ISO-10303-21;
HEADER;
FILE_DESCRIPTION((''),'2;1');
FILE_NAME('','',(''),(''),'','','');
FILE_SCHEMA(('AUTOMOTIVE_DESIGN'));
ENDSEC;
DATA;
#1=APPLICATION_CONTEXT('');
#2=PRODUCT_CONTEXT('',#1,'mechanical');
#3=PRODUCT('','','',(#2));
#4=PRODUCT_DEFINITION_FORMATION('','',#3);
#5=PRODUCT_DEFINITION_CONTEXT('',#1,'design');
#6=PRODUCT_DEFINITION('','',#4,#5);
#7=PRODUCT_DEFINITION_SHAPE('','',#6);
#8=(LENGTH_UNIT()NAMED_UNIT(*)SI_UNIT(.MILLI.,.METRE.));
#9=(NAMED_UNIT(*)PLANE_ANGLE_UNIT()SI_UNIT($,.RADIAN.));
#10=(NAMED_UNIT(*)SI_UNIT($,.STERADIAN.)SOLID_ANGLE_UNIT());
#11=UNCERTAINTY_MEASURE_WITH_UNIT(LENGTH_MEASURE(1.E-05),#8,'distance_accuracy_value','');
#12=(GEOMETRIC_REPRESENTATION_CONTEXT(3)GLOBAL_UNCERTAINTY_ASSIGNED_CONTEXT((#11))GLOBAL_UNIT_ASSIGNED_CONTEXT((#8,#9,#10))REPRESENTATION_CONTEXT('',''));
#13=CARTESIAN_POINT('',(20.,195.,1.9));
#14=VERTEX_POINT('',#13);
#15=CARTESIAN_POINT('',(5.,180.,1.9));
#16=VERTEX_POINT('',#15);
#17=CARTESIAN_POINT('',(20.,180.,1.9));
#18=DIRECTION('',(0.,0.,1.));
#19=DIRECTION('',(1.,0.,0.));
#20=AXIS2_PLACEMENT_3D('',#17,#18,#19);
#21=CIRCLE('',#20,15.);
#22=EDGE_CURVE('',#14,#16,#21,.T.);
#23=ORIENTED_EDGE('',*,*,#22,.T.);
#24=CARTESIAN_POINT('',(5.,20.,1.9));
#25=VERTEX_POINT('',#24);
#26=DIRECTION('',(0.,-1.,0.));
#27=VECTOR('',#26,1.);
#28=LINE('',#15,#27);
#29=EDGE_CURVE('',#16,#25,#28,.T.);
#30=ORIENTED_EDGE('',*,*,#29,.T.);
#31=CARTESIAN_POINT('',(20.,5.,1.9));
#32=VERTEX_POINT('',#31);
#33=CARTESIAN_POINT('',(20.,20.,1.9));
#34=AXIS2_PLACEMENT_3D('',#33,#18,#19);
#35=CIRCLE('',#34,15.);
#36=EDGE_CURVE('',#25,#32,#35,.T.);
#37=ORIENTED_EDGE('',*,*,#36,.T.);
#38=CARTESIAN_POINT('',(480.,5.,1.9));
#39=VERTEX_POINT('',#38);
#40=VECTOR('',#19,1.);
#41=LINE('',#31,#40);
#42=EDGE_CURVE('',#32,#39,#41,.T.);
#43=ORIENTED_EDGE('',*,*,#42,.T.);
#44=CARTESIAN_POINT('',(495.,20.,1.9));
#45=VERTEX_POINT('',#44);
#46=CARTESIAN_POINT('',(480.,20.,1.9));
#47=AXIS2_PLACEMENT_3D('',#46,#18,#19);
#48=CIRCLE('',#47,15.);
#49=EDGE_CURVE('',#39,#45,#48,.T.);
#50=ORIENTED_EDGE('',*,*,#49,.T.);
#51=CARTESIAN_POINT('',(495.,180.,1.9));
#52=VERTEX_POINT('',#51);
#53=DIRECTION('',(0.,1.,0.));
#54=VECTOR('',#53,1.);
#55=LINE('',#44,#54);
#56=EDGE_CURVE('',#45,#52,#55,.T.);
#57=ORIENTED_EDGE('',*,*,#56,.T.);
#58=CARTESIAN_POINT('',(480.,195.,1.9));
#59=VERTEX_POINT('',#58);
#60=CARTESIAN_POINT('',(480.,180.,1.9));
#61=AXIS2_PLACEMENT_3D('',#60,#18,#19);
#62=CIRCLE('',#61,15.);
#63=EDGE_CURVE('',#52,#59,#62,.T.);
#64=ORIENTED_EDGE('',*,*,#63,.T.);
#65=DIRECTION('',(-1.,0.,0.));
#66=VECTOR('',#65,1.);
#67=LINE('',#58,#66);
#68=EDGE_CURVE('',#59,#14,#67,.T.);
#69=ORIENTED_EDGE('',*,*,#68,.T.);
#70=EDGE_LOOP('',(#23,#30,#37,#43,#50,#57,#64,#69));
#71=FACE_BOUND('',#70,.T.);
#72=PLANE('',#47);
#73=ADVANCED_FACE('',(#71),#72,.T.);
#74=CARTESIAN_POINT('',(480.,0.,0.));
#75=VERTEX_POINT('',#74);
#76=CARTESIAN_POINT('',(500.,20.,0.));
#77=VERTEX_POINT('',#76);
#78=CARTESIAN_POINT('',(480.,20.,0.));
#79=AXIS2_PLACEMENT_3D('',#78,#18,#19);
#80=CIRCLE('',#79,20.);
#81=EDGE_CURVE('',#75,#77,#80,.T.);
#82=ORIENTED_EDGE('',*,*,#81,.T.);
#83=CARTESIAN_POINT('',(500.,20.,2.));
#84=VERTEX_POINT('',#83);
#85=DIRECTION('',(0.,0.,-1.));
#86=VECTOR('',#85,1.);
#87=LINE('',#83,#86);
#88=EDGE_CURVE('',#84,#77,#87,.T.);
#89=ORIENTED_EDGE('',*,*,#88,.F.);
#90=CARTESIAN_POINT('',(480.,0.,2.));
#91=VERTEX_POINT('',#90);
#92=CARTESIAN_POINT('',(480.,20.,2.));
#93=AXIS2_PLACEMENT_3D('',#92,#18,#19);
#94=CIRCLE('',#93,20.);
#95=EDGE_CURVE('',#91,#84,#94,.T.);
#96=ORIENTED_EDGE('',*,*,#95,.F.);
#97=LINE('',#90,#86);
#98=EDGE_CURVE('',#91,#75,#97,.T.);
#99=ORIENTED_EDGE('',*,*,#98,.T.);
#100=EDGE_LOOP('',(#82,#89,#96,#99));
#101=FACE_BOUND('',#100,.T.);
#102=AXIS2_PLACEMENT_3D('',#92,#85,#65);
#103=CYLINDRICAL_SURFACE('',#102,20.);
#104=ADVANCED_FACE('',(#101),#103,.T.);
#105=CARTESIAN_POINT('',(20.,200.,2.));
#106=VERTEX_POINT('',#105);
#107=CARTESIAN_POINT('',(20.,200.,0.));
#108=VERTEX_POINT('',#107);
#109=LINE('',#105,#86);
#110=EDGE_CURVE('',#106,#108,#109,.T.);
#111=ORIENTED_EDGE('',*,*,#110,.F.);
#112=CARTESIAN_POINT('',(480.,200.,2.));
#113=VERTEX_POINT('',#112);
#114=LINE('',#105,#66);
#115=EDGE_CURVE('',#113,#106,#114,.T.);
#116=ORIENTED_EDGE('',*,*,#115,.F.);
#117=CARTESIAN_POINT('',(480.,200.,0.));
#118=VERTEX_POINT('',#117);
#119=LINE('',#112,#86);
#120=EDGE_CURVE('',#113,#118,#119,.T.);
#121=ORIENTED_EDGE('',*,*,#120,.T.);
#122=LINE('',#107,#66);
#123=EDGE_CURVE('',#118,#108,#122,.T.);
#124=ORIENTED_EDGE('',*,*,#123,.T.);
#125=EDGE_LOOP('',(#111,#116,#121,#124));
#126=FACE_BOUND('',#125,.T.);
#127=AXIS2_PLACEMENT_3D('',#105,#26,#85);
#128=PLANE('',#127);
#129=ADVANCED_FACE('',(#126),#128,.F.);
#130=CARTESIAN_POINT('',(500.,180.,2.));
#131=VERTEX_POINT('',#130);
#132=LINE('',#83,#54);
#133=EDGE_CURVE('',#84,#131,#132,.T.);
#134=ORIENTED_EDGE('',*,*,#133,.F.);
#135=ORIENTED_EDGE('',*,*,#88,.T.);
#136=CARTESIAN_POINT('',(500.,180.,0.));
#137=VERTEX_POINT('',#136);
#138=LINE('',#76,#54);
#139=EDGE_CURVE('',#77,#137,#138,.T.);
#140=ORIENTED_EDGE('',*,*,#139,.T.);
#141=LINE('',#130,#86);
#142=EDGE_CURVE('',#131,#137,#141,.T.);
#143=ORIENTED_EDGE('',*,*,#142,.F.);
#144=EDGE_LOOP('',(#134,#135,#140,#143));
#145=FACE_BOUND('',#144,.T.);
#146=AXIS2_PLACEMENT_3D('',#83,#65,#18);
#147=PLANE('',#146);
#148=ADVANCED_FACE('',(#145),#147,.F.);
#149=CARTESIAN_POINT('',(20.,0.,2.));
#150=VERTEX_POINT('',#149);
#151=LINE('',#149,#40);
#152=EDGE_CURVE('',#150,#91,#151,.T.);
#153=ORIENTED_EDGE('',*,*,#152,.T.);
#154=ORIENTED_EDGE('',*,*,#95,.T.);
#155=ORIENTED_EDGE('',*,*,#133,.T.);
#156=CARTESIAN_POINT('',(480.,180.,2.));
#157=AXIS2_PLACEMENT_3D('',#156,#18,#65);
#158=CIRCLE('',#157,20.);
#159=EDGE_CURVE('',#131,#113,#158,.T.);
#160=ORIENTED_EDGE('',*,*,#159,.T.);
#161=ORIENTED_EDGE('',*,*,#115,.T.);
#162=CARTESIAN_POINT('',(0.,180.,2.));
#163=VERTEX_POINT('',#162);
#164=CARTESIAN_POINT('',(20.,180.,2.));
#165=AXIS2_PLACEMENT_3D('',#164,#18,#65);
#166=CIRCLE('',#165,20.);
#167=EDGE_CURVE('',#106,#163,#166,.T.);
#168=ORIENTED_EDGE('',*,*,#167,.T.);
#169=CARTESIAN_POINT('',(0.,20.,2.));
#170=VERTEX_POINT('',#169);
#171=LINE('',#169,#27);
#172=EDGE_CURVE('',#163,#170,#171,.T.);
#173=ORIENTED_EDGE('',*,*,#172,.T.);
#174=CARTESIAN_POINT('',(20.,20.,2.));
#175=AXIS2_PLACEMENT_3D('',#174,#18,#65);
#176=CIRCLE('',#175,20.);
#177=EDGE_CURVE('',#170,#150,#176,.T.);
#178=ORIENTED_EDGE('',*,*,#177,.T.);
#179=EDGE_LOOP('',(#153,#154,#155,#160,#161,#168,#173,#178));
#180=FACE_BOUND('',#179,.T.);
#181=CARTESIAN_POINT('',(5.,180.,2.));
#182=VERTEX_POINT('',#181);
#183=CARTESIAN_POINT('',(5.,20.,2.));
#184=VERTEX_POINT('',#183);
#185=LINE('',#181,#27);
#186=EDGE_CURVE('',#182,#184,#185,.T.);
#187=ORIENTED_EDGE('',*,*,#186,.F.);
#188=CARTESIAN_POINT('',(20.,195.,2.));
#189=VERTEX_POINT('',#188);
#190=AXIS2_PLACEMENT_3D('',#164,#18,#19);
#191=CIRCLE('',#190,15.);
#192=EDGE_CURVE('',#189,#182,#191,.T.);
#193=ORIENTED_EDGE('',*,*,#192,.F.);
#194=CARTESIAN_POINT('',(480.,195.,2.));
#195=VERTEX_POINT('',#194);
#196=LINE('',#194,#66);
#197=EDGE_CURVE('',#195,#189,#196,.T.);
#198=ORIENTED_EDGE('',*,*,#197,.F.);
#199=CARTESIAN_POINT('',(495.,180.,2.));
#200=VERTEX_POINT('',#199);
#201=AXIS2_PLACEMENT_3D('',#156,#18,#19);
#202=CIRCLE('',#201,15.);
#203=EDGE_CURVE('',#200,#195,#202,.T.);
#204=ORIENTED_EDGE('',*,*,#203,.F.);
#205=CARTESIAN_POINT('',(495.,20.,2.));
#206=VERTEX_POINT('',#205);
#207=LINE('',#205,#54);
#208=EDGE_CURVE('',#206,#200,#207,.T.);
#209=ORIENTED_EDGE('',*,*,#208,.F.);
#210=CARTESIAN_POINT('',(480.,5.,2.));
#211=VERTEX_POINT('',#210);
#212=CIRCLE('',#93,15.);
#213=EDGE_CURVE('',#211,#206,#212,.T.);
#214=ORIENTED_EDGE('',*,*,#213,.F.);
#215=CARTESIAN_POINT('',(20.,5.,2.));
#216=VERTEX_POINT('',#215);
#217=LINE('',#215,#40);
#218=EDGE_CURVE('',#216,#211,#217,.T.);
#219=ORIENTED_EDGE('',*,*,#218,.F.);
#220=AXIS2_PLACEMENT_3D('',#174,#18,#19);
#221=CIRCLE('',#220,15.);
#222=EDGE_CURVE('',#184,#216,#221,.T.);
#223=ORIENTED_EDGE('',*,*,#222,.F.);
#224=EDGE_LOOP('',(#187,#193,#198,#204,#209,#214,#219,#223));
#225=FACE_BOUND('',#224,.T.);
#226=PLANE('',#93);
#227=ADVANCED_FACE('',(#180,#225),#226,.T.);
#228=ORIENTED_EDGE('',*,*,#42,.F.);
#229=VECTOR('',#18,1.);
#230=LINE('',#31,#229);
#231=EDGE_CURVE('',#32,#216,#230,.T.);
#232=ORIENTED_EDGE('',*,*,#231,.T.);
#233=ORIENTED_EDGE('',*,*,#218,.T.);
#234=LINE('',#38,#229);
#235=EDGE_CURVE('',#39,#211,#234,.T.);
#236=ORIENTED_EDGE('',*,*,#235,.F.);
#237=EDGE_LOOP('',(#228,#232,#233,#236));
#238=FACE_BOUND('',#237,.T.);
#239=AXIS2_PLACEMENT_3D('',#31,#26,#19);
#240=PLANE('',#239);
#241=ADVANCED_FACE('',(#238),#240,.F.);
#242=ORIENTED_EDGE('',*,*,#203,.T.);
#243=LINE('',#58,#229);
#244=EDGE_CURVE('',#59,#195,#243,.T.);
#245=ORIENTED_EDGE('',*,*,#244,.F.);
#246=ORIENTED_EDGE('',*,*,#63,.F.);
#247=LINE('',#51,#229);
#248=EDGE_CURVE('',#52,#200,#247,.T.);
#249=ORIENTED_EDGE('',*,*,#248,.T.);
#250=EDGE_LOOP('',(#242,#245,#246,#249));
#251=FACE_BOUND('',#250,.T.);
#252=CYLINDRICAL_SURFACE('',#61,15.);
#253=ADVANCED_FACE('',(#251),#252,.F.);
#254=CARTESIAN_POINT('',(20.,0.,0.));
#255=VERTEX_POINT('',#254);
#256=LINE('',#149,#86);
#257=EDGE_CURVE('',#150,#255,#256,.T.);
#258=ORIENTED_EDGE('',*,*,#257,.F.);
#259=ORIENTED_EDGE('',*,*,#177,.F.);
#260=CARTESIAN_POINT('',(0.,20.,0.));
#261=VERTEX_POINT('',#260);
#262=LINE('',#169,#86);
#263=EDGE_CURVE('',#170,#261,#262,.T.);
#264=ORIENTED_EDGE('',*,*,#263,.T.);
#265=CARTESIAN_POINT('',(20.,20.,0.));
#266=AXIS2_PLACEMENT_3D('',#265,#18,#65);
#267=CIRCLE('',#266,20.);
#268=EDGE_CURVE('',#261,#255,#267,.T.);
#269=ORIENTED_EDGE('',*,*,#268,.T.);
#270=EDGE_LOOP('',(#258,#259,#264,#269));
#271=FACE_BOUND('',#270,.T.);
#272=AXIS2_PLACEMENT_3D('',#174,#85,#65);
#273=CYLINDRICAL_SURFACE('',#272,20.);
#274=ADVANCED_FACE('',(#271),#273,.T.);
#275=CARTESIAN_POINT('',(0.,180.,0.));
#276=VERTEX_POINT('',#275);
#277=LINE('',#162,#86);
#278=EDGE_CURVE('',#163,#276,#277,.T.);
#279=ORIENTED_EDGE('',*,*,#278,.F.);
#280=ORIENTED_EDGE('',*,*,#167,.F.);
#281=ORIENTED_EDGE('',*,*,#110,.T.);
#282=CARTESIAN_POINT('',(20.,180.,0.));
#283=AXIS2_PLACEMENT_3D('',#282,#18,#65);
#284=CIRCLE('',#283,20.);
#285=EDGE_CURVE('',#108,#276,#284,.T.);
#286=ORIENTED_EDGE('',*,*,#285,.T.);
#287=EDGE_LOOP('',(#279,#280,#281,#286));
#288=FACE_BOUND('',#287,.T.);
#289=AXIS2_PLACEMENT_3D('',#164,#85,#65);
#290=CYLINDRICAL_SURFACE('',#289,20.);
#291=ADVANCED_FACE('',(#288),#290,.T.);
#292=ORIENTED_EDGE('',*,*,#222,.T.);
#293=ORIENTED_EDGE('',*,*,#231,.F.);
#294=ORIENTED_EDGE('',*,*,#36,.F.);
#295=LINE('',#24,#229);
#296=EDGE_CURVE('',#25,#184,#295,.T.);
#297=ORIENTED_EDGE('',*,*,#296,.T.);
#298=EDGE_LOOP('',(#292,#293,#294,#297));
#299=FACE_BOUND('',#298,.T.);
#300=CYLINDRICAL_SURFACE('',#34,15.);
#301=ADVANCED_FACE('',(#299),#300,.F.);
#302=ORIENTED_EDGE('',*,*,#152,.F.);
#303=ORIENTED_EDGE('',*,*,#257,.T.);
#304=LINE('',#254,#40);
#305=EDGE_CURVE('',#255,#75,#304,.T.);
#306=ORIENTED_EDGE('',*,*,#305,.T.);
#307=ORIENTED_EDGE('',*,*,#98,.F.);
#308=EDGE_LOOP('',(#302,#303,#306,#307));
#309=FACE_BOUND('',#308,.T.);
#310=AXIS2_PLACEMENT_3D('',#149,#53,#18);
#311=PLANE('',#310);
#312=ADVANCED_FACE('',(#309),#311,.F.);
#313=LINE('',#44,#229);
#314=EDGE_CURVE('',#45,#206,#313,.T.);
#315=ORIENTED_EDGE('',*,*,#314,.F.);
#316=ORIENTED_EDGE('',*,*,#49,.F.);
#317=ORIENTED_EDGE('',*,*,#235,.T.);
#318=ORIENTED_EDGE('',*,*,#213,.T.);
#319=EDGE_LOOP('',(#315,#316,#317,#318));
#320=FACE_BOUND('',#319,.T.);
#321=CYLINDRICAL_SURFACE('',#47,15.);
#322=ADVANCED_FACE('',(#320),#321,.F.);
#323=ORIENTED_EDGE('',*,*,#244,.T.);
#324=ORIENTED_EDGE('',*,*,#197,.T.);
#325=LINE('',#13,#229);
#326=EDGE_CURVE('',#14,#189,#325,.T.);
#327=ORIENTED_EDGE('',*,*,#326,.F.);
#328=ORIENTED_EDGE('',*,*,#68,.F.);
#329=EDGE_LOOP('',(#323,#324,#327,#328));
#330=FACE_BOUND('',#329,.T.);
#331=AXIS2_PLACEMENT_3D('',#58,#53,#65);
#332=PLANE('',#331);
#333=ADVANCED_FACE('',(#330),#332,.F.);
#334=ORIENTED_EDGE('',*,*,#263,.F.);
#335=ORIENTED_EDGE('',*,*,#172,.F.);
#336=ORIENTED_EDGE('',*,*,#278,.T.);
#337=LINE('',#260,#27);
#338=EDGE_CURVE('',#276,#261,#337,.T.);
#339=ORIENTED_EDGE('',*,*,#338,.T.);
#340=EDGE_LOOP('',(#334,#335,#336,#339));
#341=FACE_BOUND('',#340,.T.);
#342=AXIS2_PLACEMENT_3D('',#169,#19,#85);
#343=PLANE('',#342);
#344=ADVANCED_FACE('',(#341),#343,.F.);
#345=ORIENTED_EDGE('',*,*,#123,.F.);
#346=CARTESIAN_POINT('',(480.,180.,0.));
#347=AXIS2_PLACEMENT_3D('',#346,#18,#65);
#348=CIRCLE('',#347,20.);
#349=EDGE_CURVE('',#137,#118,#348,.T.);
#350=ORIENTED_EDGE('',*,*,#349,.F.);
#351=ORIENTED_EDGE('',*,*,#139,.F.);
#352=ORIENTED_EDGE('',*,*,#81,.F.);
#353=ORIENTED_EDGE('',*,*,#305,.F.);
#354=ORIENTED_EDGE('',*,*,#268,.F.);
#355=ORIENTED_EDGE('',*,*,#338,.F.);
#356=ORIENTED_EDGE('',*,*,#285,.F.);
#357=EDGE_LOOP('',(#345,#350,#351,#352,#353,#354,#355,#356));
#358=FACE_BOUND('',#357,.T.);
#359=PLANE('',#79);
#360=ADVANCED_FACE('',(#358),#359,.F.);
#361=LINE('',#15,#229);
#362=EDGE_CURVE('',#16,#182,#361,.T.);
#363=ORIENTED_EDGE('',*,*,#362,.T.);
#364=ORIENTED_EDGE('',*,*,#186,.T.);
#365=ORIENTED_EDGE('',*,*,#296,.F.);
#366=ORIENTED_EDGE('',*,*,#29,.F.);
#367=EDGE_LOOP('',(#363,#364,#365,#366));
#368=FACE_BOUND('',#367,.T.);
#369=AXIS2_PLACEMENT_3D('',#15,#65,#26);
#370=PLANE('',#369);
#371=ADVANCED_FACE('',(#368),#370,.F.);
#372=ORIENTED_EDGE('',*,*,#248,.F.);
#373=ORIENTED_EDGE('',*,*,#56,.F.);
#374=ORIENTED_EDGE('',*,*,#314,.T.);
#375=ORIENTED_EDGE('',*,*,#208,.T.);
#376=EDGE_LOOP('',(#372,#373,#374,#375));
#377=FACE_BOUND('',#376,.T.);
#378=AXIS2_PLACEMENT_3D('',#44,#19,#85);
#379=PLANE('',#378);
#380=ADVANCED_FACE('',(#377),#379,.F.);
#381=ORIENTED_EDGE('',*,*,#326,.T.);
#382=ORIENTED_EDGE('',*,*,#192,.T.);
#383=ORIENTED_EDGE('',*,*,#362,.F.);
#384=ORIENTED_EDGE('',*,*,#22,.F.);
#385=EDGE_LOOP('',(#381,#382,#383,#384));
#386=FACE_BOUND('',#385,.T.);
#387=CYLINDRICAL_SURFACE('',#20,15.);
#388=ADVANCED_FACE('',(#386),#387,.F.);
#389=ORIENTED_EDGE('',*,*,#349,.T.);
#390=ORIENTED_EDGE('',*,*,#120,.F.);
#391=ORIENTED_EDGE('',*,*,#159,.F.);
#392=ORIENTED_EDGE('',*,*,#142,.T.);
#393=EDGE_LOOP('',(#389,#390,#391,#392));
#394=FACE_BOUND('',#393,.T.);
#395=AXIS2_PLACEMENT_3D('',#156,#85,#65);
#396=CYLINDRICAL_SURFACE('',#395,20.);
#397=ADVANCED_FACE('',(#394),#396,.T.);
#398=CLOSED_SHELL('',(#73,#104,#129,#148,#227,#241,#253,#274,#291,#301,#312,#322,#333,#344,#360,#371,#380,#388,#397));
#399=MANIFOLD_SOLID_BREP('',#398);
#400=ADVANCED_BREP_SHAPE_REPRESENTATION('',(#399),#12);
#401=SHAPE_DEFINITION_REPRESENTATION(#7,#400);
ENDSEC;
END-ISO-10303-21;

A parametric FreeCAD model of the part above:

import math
import FreeCAD as App
import Part
import Sketcher
Q = App.Units.Quantity

doc = App.newDocument("Part")
body = doc.addObject("PartDesign::Body", "Body")

# Sketch on XY plane
sketch1 = doc.addObject("Sketcher::SketchObject", "Sketch")
body.addObject(sketch1)
sketch1.AttachmentSupport = (doc.XY_Plane, [""])
sketch1.MapMode = "FlatFace"
sketch1.addGeometry(Part.LineSegment(App.Vector(20, 0, 0), App.Vector(480, 0, 0)), False)
sketch1.addGeometry(Part.ArcOfCircle(Part.Circle(App.Vector(480, 20, 0), App.Vector(0, 0, 1), 20), math.radians(-90), math.radians(0)), False)
sketch1.addGeometry(Part.LineSegment(App.Vector(500, 20, 0), App.Vector(500, 180, 0)), False)
sketch1.addGeometry(Part.ArcOfCircle(Part.Circle(App.Vector(480, 180, 0), App.Vector(0, 0, 1), 20), math.radians(0), math.radians(90)), False)
sketch1.addGeometry(Part.LineSegment(App.Vector(480, 200, 0), App.Vector(20, 200, 0)), False)
sketch1.addGeometry(Part.ArcOfCircle(Part.Circle(App.Vector(20, 180, 0), App.Vector(0, 0, 1), 20), math.radians(90), math.radians(180)), False)
sketch1.addGeometry(Part.LineSegment(App.Vector(0, 180, 0), App.Vector(0, 20, 0)), False)
sketch1.addGeometry(Part.ArcOfCircle(Part.Circle(App.Vector(20, 20, 0), App.Vector(0, 0, 1), 20), math.radians(180), math.radians(270)), False)
sketch1.addConstraint(Sketcher.Constraint("Tangent", 0, 2, 1, 1))
sketch1.addConstraint(Sketcher.Constraint("Tangent", 1, 2, 2, 1))
sketch1.addConstraint(Sketcher.Constraint("Tangent", 2, 2, 3, 1))
sketch1.addConstraint(Sketcher.Constraint("Tangent", 3, 2, 4, 1))
sketch1.addConstraint(Sketcher.Constraint("Tangent", 4, 2, 5, 1))
sketch1.addConstraint(Sketcher.Constraint("Tangent", 5, 2, 6, 1))
sketch1.addConstraint(Sketcher.Constraint("Tangent", 6, 2, 7, 1))
sketch1.addConstraint(Sketcher.Constraint("Tangent", 7, 2, 0, 1))
sketch1.addConstraint(Sketcher.Constraint("Horizontal", 0))
sketch1.addConstraint(Sketcher.Constraint("Vertical", 2))
sketch1.addConstraint(Sketcher.Constraint("Horizontal", 4))
sketch1.addConstraint(Sketcher.Constraint("Vertical", 6))
sketch1.addConstraint(Sketcher.Constraint("Equal", 1, 3))
sketch1.addConstraint(Sketcher.Constraint("Equal", 3, 5))
sketch1.addConstraint(Sketcher.Constraint("Equal", 5, 7))
sketch1.addConstraint(Sketcher.Constraint("PointOnObject", 0, 2, -1))
sketch1.addConstraint(Sketcher.Constraint("PointOnObject", 5, 2, -2))
sketch1.addConstraint(Sketcher.Constraint("Radius", 1, Q("20 mm")))
sketch1.addConstraint(Sketcher.Constraint("DistanceX", 0, 1, 0, 2, Q("460 mm")))
sketch1.addConstraint(Sketcher.Constraint("DistanceY", 2, 1, 2, 2, Q("160 mm")))
pad1 = doc.addObject("PartDesign::Pad", "Pad")
body.addObject(pad1)
pad1.Profile = sketch1
pad1.Length = 2

# Sketch on XY plane
sketch2 = doc.addObject("Sketcher::SketchObject", "Sketch001")
body.addObject(sketch2)
sketch2.AttachmentSupport = (doc.XY_Plane, [""])
sketch2.MapMode = "FlatFace"
sketch2.AttachmentOffset = App.Placement(App.Vector(0, 0, 2), App.Rotation())
sketch2.addGeometry(Part.LineSegment(App.Vector(495, 20, 0), App.Vector(495, 180, 0)), False)
sketch2.addGeometry(Part.ArcOfCircle(Part.Circle(App.Vector(480, 180, 0), App.Vector(0, 0, 1), 15), math.radians(0), math.radians(90)), False)
sketch2.addGeometry(Part.LineSegment(App.Vector(480, 195, 0), App.Vector(20, 195, 0)), False)
sketch2.addGeometry(Part.ArcOfCircle(Part.Circle(App.Vector(20, 180, 0), App.Vector(0, 0, 1), 15), math.radians(90), math.radians(180)), False)
sketch2.addGeometry(Part.LineSegment(App.Vector(5, 180, 0), App.Vector(5, 20, 0)), False)
sketch2.addGeometry(Part.ArcOfCircle(Part.Circle(App.Vector(20, 20, 0), App.Vector(0, 0, 1), 15), math.radians(180), math.radians(270)), False)
sketch2.addGeometry(Part.LineSegment(App.Vector(20, 5, 0), App.Vector(480, 5, 0)), False)
sketch2.addGeometry(Part.ArcOfCircle(Part.Circle(App.Vector(480, 20, 0), App.Vector(0, 0, 1), 15), math.radians(-90), math.radians(0)), False)
sketch2.addConstraint(Sketcher.Constraint("Tangent", 0, 2, 1, 1))
sketch2.addConstraint(Sketcher.Constraint("Tangent", 1, 2, 2, 1))
sketch2.addConstraint(Sketcher.Constraint("Tangent", 2, 2, 3, 1))
sketch2.addConstraint(Sketcher.Constraint("Tangent", 3, 2, 4, 1))
sketch2.addConstraint(Sketcher.Constraint("Tangent", 4, 2, 5, 1))
sketch2.addConstraint(Sketcher.Constraint("Tangent", 5, 2, 6, 1))
sketch2.addConstraint(Sketcher.Constraint("Tangent", 6, 2, 7, 1))
sketch2.addConstraint(Sketcher.Constraint("Tangent", 7, 2, 0, 1))
sketch2.addConstraint(Sketcher.Constraint("Vertical", 0))
sketch2.addConstraint(Sketcher.Constraint("Horizontal", 2))
sketch2.addConstraint(Sketcher.Constraint("Vertical", 4))
sketch2.addConstraint(Sketcher.Constraint("Horizontal", 6))
sketch2.addConstraint(Sketcher.Constraint("Equal", 1, 3))
sketch2.addConstraint(Sketcher.Constraint("Equal", 3, 5))
sketch2.addConstraint(Sketcher.Constraint("Equal", 5, 7))
sketch2.addConstraint(Sketcher.Constraint("Radius", 1, Q("15 mm")))
sketch2.addConstraint(Sketcher.Constraint("DistanceX", 2, 2, 2, 1, Q("460 mm")))
sketch2.addConstraint(Sketcher.Constraint("DistanceY", 0, 1, 0, 2, Q("160 mm")))
sketch2.addConstraint(Sketcher.Constraint("DistanceX", -1, 1, 1, 3, Q("480 mm")))
sketch2.addConstraint(Sketcher.Constraint("DistanceY", -1, 1, 1, 3, Q("180 mm")))
pocket1 = doc.addObject("PartDesign::Pocket", "Pocket")
body.addObject(pocket1)
pocket1.Profile = sketch2
pocket1.Length = 0.1

doc.recompute()
